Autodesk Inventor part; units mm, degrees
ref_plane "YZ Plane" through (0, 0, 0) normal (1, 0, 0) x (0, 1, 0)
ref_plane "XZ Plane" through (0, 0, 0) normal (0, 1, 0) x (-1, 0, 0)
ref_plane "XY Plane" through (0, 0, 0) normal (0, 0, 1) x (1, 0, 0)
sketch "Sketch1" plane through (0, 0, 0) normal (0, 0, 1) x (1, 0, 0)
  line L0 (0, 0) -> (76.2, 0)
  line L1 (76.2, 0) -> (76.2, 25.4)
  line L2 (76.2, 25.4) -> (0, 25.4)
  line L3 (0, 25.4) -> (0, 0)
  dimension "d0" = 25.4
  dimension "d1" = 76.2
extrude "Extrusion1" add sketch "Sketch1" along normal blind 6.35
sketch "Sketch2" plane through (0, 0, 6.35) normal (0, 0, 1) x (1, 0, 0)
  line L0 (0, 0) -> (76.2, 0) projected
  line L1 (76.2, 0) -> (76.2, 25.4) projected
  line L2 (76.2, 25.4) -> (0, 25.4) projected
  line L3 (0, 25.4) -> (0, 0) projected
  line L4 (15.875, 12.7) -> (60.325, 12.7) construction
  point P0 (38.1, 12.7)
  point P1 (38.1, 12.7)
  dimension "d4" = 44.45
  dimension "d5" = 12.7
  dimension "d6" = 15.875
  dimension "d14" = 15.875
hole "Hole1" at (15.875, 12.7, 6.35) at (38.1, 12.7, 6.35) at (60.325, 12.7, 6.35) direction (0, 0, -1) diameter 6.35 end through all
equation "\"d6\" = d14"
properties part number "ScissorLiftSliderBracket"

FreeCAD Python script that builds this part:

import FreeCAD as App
import Part
import Sketcher
Q = App.Units.Quantity

doc = App.newDocument("Part")
body = doc.addObject("PartDesign::Body", "Body")

sketch1 = body.newObject("Sketcher::SketchObject", "Sketch")
sketch1.AttachmentSupport = (doc.getObject("XY_Plane"), [""])
sketch1.MapMode = "FlatFace"
sketch1.addGeometry([
    Part.LineSegment(App.Vector(0, 25.4, 0), App.Vector(0, 0, 0)),
    Part.LineSegment(App.Vector(0, 0, 0), App.Vector(76.2, 0, 0)),
    Part.LineSegment(App.Vector(76.2, 0, 0), App.Vector(76.2, 25.4, 0)),
    Part.LineSegment(App.Vector(76.2, 25.4, 0), App.Vector(0, 25.4, 0)),
], False)
sketch1.addConstraint([
    Sketcher.Constraint("Coincident", 0, 2, 1, 1),
    Sketcher.Constraint("Coincident", 1, 2, 2, 1),
    Sketcher.Constraint("Coincident", 2, 2, 3, 1),
    Sketcher.Constraint("Coincident", 3, 2, 0, 1),
    Sketcher.Constraint("Vertical", 0),
    Sketcher.Constraint("Horizontal", 1),
    Sketcher.Constraint("Vertical", 2),
    Sketcher.Constraint("Horizontal", 3),
    Sketcher.Constraint("Coincident", 0, 2, -1, 1),
    Sketcher.Constraint("DistanceX", 1, 1, 1, 2, Q("3 in")),
    Sketcher.Constraint("DistanceY", 0, 2, 0, 1, Q("1 in")),
])
pad1 = body.newObject("PartDesign::Pad", "Pad")
pad1.Profile = sketch1
pad1.Length = Q("0.25 in")

sketch2 = body.newObject("Sketcher::SketchObject", "Sketch001")
sketch2.AttachmentSupport = (doc.getObject("XY_Plane"), [""])
sketch2.MapMode = "FlatFace"
sketch2.AttachmentOffset = App.Placement(App.Vector(0, 0, 0.25 * 25.4), App.Rotation())
sketch2.addGeometry([
    Part.Circle(App.Vector(15.875, 12.7, 0), App.Vector(0, 0, 1), 3.175),
    Part.Circle(App.Vector(38.1, 12.7, 0), App.Vector(0, 0, 1), 3.175),
    Part.Circle(App.Vector(60.325, 12.7, 0), App.Vector(0, 0, 1), 3.175),
], False)
sketch2.addConstraint([
    Sketcher.Constraint("Equal", 0, 1),
    Sketcher.Constraint("Equal", 1, 2),
    Sketcher.Constraint("Horizontal", 0, 3, 1, 3),
    Sketcher.Constraint("Horizontal", 1, 3, 2, 3),
    Sketcher.Constraint("Diameter", 0, Q("0.25 in")),
    Sketcher.Constraint("DistanceY", -1, 1, 0, 3, Q("0.5 in")),
    Sketcher.Constraint("DistanceX", -1, 1, 1, 3, Q("1.5 in")),
    Sketcher.Constraint("DistanceX", 0, 3, 2, 3, Q("1.75 in")),
    Sketcher.Constraint("DistanceX", -1, 1, 0, 3, Q("0.625 in")),
])
doc.recompute()
hole = body.newObject("PartDesign::Hole", "Hole")
hole.Profile = sketch2
hole.ThreadType = "None"
hole.Diameter = Q("0.25 in")
hole.DepthType = "ThroughAll"

doc.recompute()
